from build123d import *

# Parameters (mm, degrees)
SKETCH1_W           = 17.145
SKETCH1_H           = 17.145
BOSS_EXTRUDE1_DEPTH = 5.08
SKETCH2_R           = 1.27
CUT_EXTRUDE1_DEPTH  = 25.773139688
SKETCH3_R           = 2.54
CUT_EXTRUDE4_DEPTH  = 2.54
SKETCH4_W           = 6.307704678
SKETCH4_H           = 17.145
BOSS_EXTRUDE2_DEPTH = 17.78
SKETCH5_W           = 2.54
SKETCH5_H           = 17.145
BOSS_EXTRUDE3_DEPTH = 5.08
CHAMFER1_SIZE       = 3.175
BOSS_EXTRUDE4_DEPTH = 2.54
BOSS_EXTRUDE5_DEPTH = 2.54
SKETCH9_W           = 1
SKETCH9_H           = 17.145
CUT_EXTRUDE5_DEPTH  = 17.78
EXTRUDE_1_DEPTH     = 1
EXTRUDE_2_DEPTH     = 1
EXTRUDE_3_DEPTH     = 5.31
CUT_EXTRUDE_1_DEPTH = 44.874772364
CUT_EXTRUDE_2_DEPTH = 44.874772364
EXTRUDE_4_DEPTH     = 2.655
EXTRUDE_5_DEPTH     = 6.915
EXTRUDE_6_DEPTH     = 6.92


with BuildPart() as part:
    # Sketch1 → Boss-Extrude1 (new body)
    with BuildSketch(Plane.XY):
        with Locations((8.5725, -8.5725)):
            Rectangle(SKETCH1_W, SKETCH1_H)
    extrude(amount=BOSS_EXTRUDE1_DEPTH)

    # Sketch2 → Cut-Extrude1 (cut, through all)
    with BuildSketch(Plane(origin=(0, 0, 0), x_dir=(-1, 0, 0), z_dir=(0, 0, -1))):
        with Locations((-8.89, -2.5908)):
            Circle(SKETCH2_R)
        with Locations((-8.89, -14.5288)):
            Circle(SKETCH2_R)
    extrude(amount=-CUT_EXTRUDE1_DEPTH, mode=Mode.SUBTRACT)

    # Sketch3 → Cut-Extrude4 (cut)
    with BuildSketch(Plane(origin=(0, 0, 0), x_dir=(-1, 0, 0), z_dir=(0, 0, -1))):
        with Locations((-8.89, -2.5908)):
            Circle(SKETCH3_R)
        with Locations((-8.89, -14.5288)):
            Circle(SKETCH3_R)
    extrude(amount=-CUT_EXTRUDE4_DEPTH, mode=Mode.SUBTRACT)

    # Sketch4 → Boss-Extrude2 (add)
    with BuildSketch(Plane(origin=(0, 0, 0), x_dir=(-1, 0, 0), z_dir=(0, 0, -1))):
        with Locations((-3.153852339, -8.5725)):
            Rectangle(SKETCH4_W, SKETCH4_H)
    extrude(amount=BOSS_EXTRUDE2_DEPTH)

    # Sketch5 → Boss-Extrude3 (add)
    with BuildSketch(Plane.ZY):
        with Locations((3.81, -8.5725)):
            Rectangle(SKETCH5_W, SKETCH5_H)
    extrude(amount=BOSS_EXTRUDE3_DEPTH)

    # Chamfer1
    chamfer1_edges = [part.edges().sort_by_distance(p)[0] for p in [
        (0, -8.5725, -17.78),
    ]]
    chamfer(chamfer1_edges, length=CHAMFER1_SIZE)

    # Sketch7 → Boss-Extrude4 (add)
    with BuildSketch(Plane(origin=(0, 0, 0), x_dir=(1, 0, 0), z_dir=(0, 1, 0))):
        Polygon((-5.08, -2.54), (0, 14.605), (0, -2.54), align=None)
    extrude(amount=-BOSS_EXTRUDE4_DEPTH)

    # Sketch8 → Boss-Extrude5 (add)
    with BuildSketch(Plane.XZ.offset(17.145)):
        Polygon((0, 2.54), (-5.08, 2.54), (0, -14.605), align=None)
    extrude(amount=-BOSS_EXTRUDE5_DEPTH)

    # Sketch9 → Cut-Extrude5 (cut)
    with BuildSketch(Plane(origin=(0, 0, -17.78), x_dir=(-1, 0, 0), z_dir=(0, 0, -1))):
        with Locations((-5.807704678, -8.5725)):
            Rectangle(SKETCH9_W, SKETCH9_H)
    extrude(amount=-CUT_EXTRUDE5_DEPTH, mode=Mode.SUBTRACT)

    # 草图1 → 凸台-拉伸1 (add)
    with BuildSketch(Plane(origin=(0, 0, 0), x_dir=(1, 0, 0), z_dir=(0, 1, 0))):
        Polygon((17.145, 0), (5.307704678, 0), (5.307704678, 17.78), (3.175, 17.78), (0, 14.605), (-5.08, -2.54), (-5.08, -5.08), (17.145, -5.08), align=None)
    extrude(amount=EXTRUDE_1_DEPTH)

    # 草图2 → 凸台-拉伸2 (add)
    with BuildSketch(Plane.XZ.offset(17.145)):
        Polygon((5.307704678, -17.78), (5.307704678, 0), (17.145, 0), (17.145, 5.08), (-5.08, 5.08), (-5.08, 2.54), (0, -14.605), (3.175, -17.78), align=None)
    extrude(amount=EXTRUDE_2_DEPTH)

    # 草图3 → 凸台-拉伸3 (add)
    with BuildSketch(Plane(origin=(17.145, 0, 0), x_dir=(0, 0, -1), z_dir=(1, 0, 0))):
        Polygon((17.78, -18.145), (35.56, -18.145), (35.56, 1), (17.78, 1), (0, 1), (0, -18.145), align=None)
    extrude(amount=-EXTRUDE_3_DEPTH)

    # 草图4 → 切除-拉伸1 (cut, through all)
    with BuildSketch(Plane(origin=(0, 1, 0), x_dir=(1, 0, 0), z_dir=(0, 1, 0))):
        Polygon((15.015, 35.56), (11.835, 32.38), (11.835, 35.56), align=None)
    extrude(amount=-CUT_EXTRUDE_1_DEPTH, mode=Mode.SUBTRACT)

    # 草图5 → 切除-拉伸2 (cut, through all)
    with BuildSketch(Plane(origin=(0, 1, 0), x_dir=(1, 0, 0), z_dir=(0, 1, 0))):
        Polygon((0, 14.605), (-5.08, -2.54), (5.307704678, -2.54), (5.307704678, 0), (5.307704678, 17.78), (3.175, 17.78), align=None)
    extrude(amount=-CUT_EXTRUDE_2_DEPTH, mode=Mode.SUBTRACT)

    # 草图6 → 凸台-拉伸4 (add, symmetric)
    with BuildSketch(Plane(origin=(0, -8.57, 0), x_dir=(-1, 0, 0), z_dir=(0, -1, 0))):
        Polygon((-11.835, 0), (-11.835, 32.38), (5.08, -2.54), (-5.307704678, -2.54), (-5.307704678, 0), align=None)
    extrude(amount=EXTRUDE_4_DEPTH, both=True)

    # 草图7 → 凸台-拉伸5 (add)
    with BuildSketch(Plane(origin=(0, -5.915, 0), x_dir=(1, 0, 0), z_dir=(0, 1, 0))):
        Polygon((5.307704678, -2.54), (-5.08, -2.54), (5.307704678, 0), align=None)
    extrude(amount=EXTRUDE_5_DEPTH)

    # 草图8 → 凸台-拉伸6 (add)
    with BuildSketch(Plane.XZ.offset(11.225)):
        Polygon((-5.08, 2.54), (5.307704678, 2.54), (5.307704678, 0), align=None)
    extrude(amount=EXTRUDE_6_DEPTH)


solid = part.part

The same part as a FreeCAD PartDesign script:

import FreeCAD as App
import Part
import Sketcher
Q = App.Units.Quantity


def edges_at(feature, points):
    """Names of the edges that pass closest to the given points."""
    edges = feature.Shape.Edges
    near = lambda p: min(range(len(edges)), key=lambda i: edges[i].distToShape(Part.Vertex(*p))[0])
    return sorted({f"Edge{near(p) + 1}" for p in points})

doc = App.newDocument("Part")
body = doc.addObject("PartDesign::Body", "Body")

# Sketch on XY plane
sketch1 = body.newObject("Sketcher::SketchObject", "Sketch")
sketch1.AttachmentSupport = (doc.getObject("XY_Plane"), [""])
sketch1.MapMode = "FlatFace"
sketch1.addGeometry([
    Part.LineSegment(App.Vector(0, 0, 0), App.Vector(0, -17, 0)),
    Part.LineSegment(App.Vector(0, -17, 0), App.Vector(17, -17, 0)),
    Part.LineSegment(App.Vector(17, -17, 0), App.Vector(17, 0, 0)),
    Part.LineSegment(App.Vector(17, 0, 0), App.Vector(0, 0, 0)),
], False)
sketch1.addConstraint([
    Sketcher.Constraint("Coincident", 0, 2, 1, 1),
    Sketcher.Constraint("Coincident", 1, 2, 2, 1),
    Sketcher.Constraint("Coincident", 2, 2, 3, 1),
    Sketcher.Constraint("Coincident", 3, 2, 0, 1),
    Sketcher.Constraint("Vertical", 0),
    Sketcher.Constraint("Horizontal", 1),
    Sketcher.Constraint("Vertical", 2),
    Sketcher.Constraint("Horizontal", 3),
    Sketcher.Constraint("Coincident", 3, 2, -1, 1),
    Sketcher.Constraint("Equal", 3, 0),
    Sketcher.Constraint("DistanceX", 1, 1, 1, 2, Q("0.675 in")),
])
pad1 = body.newObject("PartDesign::Pad", "Pad")
pad1.Profile = sketch1
pad1.Length = Q("0.2 in")

# Sketch on XY plane
sketch2 = body.newObject("Sketcher::SketchObject", "Sketch001")
sketch2.AttachmentSupport = (doc.getObject("XY_Plane"), [""])
sketch2.MapMode = "FlatFace"
sketch2.addGeometry([
    Part.Circle(App.Vector(8.9, -2.6, 0), App.Vector(0, 0, 1), 1.3),
    Part.Circle(App.Vector(8.9, -14.5, 0), App.Vector(0, 0, 1), 1.3),
], False)
sketch2.addConstraint([
    Sketcher.Constraint("Equal", 0, 1),
    Sketcher.Constraint("Vertical", 0, 3, 1, 3),
    Sketcher.Constraint("Diameter", 0, Q("0.1 in")),
    Sketcher.Constraint("DistanceX", -1, 1, 0, 3, Q("0.35 in")),
    Sketcher.Constraint("DistanceY", 1, 3, 0, 3, Q("0.47 in")),
    Sketcher.Constraint("DistanceY", 0, 3, -1, 1, Q("0.102 in")),
])
pocket1 = body.newObject("PartDesign::Pocket", "Pocket")
pocket1.Profile = sketch2
pocket1.Type = "ThroughAll"
pocket1.Reversed = True

# Sketch on XY plane
sketch3 = body.newObject("Sketcher::SketchObject", "Sketch002")
sketch3.AttachmentSupport = (doc.getObject("XY_Plane"), [""])
sketch3.MapMode = "FlatFace"
sketch3.addGeometry([
    Part.Circle(App.Vector(8.9, -2.6, 0), App.Vector(0, 0, 1), 2.5),
    Part.Circle(App.Vector(8.9, -14.5, 0), App.Vector(0, 0, 1), 2.5),
], False)
sketch3.addConstraint([
    Sketcher.Constraint("Equal", 0, 1),
    Sketcher.Constraint("Vertical", 0, 3, 1, 3),
    Sketcher.Constraint("Diameter", 0, Q("0.2 in")),
    Sketcher.Constraint("DistanceX", -1, 1, 0, 3, Q("0.35 in")),
    Sketcher.Constraint("DistanceY", 1, 3, 0, 3, Q("0.47 in")),
    Sketcher.Constraint("DistanceY", 0, 3, -1, 1, Q("0.102 in")),
])
pocket2 = body.newObject("PartDesign::Pocket", "Pocket001")
pocket2.Profile = sketch3
pocket2.Length = Q("0.1 in")
pocket2.Reversed = True

# Sketch on XY plane
sketch4 = body.newObject("Sketcher::SketchObject", "Sketch003")
sketch4.AttachmentSupport = (doc.getObject("XY_Plane"), [""])
sketch4.MapMode = "FlatFace"
sketch4.addGeometry([
    Part.LineSegment(App.Vector(6, 0, 0), App.Vector(6, -17, 0)),
    Part.LineSegment(App.Vector(6, -17, 0), App.Vector(0, -17, 0)),
    Part.LineSegment(App.Vector(0, -17, 0), App.Vector(0, 0, 0)),
    Part.LineSegment(App.Vector(0, 0, 0), App.Vector(6, 0, 0)),
], False)
sketch4.addConstraint([
    Sketcher.Constraint("Coincident", 0, 2, 1, 1),
    Sketcher.Constraint("Coincident", 1, 2, 2, 1),
    Sketcher.Constraint("Coincident", 2, 2, 3, 1),
    Sketcher.Constraint("Coincident", 3, 2, 0, 1),
    Sketcher.Constraint("Vertical", 0),
    Sketcher.Constraint("Horizontal", 1),
    Sketcher.Constraint("Vertical", 2),
    Sketcher.Constraint("Horizontal", 3),
    Sketcher.Constraint("Coincident", 2, 2, -1, 1),
    Sketcher.Constraint("DistanceY", 0, 2, 0, 1, Q("0.675 in")),
    Sketcher.Constraint("DistanceX", 1, 2, 1, 1, Q("6.307705 mm")),
])
pad2 = body.newObject("PartDesign::Pad", "Pad001")
pad2.Profile = sketch4
pad2.Length = Q("0.7 in")
pad2.Reversed = True

# Sketch on YZ plane
sketch5 = body.newObject("Sketcher::SketchObject", "Sketch004")
sketch5.AttachmentSupport = (doc.getObject("YZ_Plane"), [""])
sketch5.MapMode = "FlatFace"
sketch5.addGeometry([
    Part.LineSegment(App.Vector(0, 2.5, 0), App.Vector(-17.1, 2.5, 0)),
    Part.LineSegment(App.Vector(-17.1, 2.5, 0), App.Vector(-17.1, 5.1, 0)),
    Part.LineSegment(App.Vector(-17.1, 5.1, 0), App.Vector(0, 5.1, 0)),
    Part.LineSegment(App.Vector(0, 5.1, 0), App.Vector(0, 2.5, 0)),
], False)
sketch5.addConstraint([
    Sketcher.Constraint("Coincident", 0, 2, 1, 1),
    Sketcher.Constraint("Coincident", 1, 2, 2, 1),
    Sketcher.Constraint("Coincident", 2, 2, 3, 1),
    Sketcher.Constraint("Coincident", 3, 2, 0, 1),
    Sketcher.Constraint("Horizontal", 0),
    Sketcher.Constraint("Vertical", 1),
    Sketcher.Constraint("Horizontal", 2),
    Sketcher.Constraint("Vertical", 3),
    Sketcher.Constraint("PointOnObject", 2, 2, -2),
    Sketcher.Constraint("DistanceY", 1, 1, 1, 2, Q("0.1 in")),
    Sketcher.Constraint("DistanceY", -1, 1, 0, 2, Q("0.1 in")),
    Sketcher.Constraint("DistanceX", 0, 2, 0, 1, Q("0.675 in")),
])
pad3 = body.newObject("PartDesign::Pad", "Pad002")
pad3.Profile = sketch5
pad3.Length = Q("0.2 in")
pad3.Reversed = True
doc.recompute()

chamfer = body.newObject("PartDesign::Chamfer", "Chamfer")
chamfer.Base = (pad3, edges_at(pad3, [(0, -8.572, -17.78)]))
chamfer.Size = Q("0.125 in")

# Sketch on XZ plane
sketch6 = body.newObject("Sketcher::SketchObject", "Sketch005")
sketch6.AttachmentSupport = (doc.getObject("XZ_Plane"), [""])
sketch6.MapMode = "FlatFace"
sketch6.addGeometry([
    Part.LineSegment(App.Vector(0, -15, 0), App.Vector(-5, 3, 0)),
    Part.LineSegment(App.Vector(-5, 3, 0), App.Vector(0, 3, 0)),
    Part.LineSegment(App.Vector(0, 3, 0), App.Vector(0, -15, 0)),
], False)
sketch6.addConstraint([
    Sketcher.Constraint("Coincident", 0, 2, 1, 1),
    Sketcher.Constraint("Coincident", 1, 2, 2, 1),
    Sketcher.Constraint("Coincident", 2, 2, 0, 1),
    Sketcher.Constraint("Horizontal", 1),
    Sketcher.Constraint("Vertical", 2),
    Sketcher.Constraint("PointOnObject", 1, 2, -2),
    Sketcher.Constraint("DistanceX", 1, 1, 1, 2, Q("0.2 in")),
    Sketcher.Constraint("DistanceY", -1, 1, 0, 2, Q("0.1 in")),
    Sketcher.Constraint("DistanceY", 2, 2, 2, 1, Q("0.675 in")),
])
pad4 = body.newObject("PartDesign::Pad", "Pad003")
pad4.Profile = sketch6
pad4.Length = Q("0.1 in")

# Sketch on XZ plane
sketch7 = body.newObject("Sketcher::SketchObject", "Sketch006")
sketch7.AttachmentSupport = (doc.getObject("XZ_Plane"), [""])
sketch7.MapMode = "FlatFace"
sketch7.AttachmentOffset = App.Placement(App.Vector(0, 0, 0.675 * 25.4), App.Rotation())
sketch7.addGeometry([
    Part.LineSegment(App.Vector(0, 3, 0), App.Vector(-5, 3, 0)),
    Part.LineSegment(App.Vector(-5, 3, 0), App.Vector(0, -15, 0)),
    Part.LineSegment(App.Vector(0, -15, 0), App.Vector(0, 3, 0)),
], False)
sketch7.addConstraint([
    Sketcher.Constraint("Coincident", 0, 2, 1, 1),
    Sketcher.Constraint("Coincident", 1, 2, 2, 1),
    Sketcher.Constraint("Coincident", 2, 2, 0, 1),
    Sketcher.Constraint("Horizontal", 0),
    Sketcher.Constraint("Vertical", 2),
    Sketcher.Constraint("PointOnObject", 1, 2, -2),
    Sketcher.Constraint("DistanceX", 0, 2, 0, 1, Q("0.2 in")),
    Sketcher.Constraint("DistanceY", -1, 1, 0, 2, Q("0.1 in")),
    Sketcher.Constraint("DistanceY", 2, 1, 2, 2, Q("0.675 in")),
])
pad5 = body.newObject("PartDesign::Pad", "Pad004")
pad5.Profile = sketch7
pad5.Length = Q("0.1 in")
pad5.Reversed = True

# Sketch on XY plane
sketch8 = body.newObject("Sketcher::SketchObject", "Sketch007")
sketch8.AttachmentSupport = (doc.getObject("XY_Plane"), [""])
sketch8.MapMode = "FlatFace"
sketch8.AttachmentOffset = App.Placement(App.Vector(0, 0, -0.7 * 25.4), App.Rotation())
sketch8.addGeometry([
    Part.LineSegment(App.Vector(6.3, 0, 0), App.Vector(6.3, -17.1, 0)),
    Part.LineSegment(App.Vector(6.3, -17.1, 0), App.Vector(5.3, -17.1, 0)),
    Part.LineSegment(App.Vector(5.3, -17.1, 0), App.Vector(5.3, 0, 0)),
    Part.LineSegment(App.Vector(5.3, 0, 0), App.Vector(6.3, 0, 0)),
], False)
sketch8.addConstraint([
    Sketcher.Constraint("Coincident", 0, 2, 1, 1),
    Sketcher.Constraint("Coincident", 1, 2, 2, 1),
    Sketcher.Constraint("Coincident", 2, 2, 3, 1),
    Sketcher.Constraint("Coincident", 3, 2, 0, 1),
    Sketcher.Constraint("Vertical", 0),
    Sketcher.Constraint("Horizontal", 1),
    Sketcher.Constraint("Vertical", 2),
    Sketcher.Constraint("Horizontal", 3),
    Sketcher.Constraint("PointOnObject", 2, 2, -1),
    Sketcher.Constraint("DistanceY", 0, 2, 0, 1, Q("0.675 in")),
    Sketcher.Constraint("DistanceX", 1, 2, 1, 1, Q("1 mm")),
    Sketcher.Constraint("DistanceX", -1, 1, 0, 2, Q("6.307705 mm")),
])
pocket3 = body.newObject("PartDesign::Pocket", "Pocket002")
pocket3.Profile = sketch8
pocket3.Length = Q("0.7 in")
pocket3.Reversed = True

# Sketch on XZ plane
sketch9 = body.newObject("Sketcher::SketchObject", "Sketch008")
sketch9.AttachmentSupport = (doc.getObject("XZ_Plane"), [""])
sketch9.MapMode = "FlatFace"
sketch9.addGeometry([
    Part.LineSegment(App.Vector(17.1, 0, 0), App.Vector(5.3, 0, 0)),  # 0
    Part.LineSegment(App.Vector(5.3, 0, 0), App.Vector(5.3, -17.8, 0)),  # 1
    Part.LineSegment(App.Vector(5.3, -17.8, 0), App.Vector(3.2, -17.8, 0)),  # 2
    Part.LineSegment(App.Vector(3.2, -17.8, 0), App.Vector(0, -14.6, 0)),  # 3
    Part.LineSegment(App.Vector(0, -14.6, 0), App.Vector(-5.1, 2.5, 0)),  # 4
    Part.LineSegment(App.Vector(-5.1, 2.5, 0), App.Vector(-5.1, 5.1, 0)),  # 5
    Part.LineSegment(App.Vector(-5.1, 5.1, 0), App.Vector(17.1, 5.1, 0)),  # 6
    Part.LineSegment(App.Vector(17.1, 5.1, 0), App.Vector(17.1, 0, 0)),  # 7
], False)
sketch9.addConstraint([
    Sketcher.Constraint("Coincident", 0, 2, 1, 1),
    Sketcher.Constraint("Coincident", 1, 2, 2, 1),
    Sketcher.Constraint("Coincident", 2, 2, 3, 1),
    Sketcher.Constraint("Coincident", 3, 2, 4, 1),
    Sketcher.Constraint("Coincident", 4, 2, 5, 1),
    Sketcher.Constraint("Coincident", 5, 2, 6, 1),
    Sketcher.Constraint("Coincident", 6, 2, 7, 1),
    Sketcher.Constraint("Coincident", 7, 2, 0, 1),
    Sketcher.Constraint("Horizontal", 0),
    Sketcher.Constraint("Vertical", 1),
    Sketcher.Constraint("Horizontal", 2),
    Sketcher.Constraint("Vertical", 5),
    Sketcher.Constraint("Horizontal", 6),
    Sketcher.Constraint("Vertical", 7),
    Sketcher.Constraint("PointOnObject", 0, 2, -1),
    Sketcher.Constraint("PointOnObject", 3, 2, -2),
    Sketcher.Constraint("DistanceY", 1, 2, 1, 1, Q("0.7 in")),
    Sketcher.Constraint("DistanceY", 5, 1, 5, 2, Q("0.1 in")),
    Sketcher.Constraint("DistanceY", 7, 2, 7, 1, Q("0.2 in")),
    Sketcher.Constraint("Angle", 3, Q("135 deg")),
    Sketcher.Constraint("DistanceX", 4, 2, -1, 1, Q("0.2 in")),
    Sketcher.Constraint("DistanceX", 6, 1, 6, 2, Q("0.875 in")),
    Sketcher.Constraint("DistanceX", -1, 1, 2, 2, Q("0.125 in")),
    Sketcher.Constraint("DistanceX", 0, 2, 0, 1, Q("11.837295 mm")),
])
pad6 = body.newObject("PartDesign::Pad", "Pad005")
pad6.Profile = sketch9
pad6.Length = 1
pad6.Reversed = True

# Sketch on XZ plane
sketch10 = body.newObject("Sketcher::SketchObject", "Sketch009")
sketch10.AttachmentSupport = (doc.getObject("XZ_Plane"), [""])
sketch10.MapMode = "FlatFace"
sketch10.AttachmentOffset = App.Placement(App.Vector(0, 0, 0.675 * 25.4), App.Rotation())
sketch10.addGeometry([
    Part.LineSegment(App.Vector(5.3, -17.8, 0), App.Vector(5.3, 0, 0)),  # 0
    Part.LineSegment(App.Vector(5.3, 0, 0), App.Vector(17.1, 0, 0)),  # 1
    Part.LineSegment(App.Vector(17.1, 0, 0), App.Vector(17.1, 5.1, 0)),  # 2
    Part.LineSegment(App.Vector(17.1, 5.1, 0), App.Vector(-5.1, 5.1, 0)),  # 3
    Part.LineSegment(App.Vector(-5.1, 5.1, 0), App.Vector(-5.1, 2.5, 0)),  # 4
    Part.LineSegment(App.Vector(-5.1, 2.5, 0), App.Vector(0, -14.6, 0)),  # 5
    Part.LineSegment(App.Vector(0, -14.6, 0), App.Vector(3.2, -17.8, 0)),  # 6
    Part.LineSegment(App.Vector(3.2, -17.8, 0), App.Vector(5.3, -17.8, 0)),  # 7
], False)
sketch10.addConstraint([
    Sketcher.Constraint("Coincident", 0, 2, 1, 1),
    Sketcher.Constraint("Coincident", 1, 2, 2, 1),
    Sketcher.Constraint("Coincident", 2, 2, 3, 1),
    Sketcher.Constraint("Coincident", 3, 2, 4, 1),
    Sketcher.Constraint("Coincident", 4, 2, 5, 1),
    Sketcher.Constraint("Coincident", 5, 2, 6, 1),
    Sketcher.Constraint("Coincident", 6, 2, 7, 1),
    Sketcher.Constraint("Coincident", 7, 2, 0, 1),
    Sketcher.Constraint("Vertical", 0),
    Sketcher.Constraint("Horizontal", 1),
    Sketcher.Constraint("Vertical", 2),
    Sketcher.Constraint("Horizontal", 3),
    Sketcher.Constraint("Vertical", 4),
    Sketcher.Constraint("Horizontal", 7),
    Sketcher.Constraint("PointOnObject", 0, 2, -1),
    Sketcher.Constraint("PointOnObject", 5, 2, -2),
    Sketcher.Constraint("DistanceY", 0, 1, 0, 2, Q("0.7 in")),
    Sketcher.Constraint("DistanceY", 2, 1, 2, 2, Q("0.2 in")),
    Sketcher.Constraint("DistanceY", 4, 2, 4, 1, Q("0.1 in")),
    Sketcher.Constraint("Angle", 6, Q("-45 deg")),
    Sketcher.Constraint("DistanceX", 3, 2, -1, 1, Q("0.2 in")),
    Sketcher.Constraint("DistanceX", 3, 2, 3, 1, Q("0.875 in")),
    Sketcher.Constraint("DistanceX", 6, 2, 1, 2, Q("0.55 in")),
    Sketcher.Constraint("DistanceX", 1, 1, 1, 2, Q("11.837295 mm")),
])
pad7 = body.newObject("PartDesign::Pad", "Pad006")
pad7.Profile = sketch10
pad7.Length = 1

# Sketch on YZ plane
sketch11 = body.newObject("Sketcher::SketchObject", "Sketch010")
sketch11.AttachmentSupport = (doc.getObject("YZ_Plane"), [""])
sketch11.MapMode = "FlatFace"
sketch11.AttachmentOffset = App.Placement(App.Vector(0, 0, 0.675 * 25.4), App.Rotation())
sketch11.addGeometry([
    Part.LineSegment(App.Vector(-18, -36, 0), App.Vector(1, -36, 0)),
    Part.LineSegment(App.Vector(1, -36, 0), App.Vector(1, 0, 0)),
    Part.LineSegment(App.Vector(1, 0, 0), App.Vector(-18, 0, 0)),
    Part.LineSegment(App.Vector(-18, 0, 0), App.Vector(-18, -36, 0)),
], False)
sketch11.addConstraint([
    Sketcher.Constraint("Coincident", 0, 2, 1, 1),
    Sketcher.Constraint("Coincident", 1, 2, 2, 1),
    Sketcher.Constraint("Coincident", 2, 2, 3, 1),
    Sketcher.Constraint("Coincident", 3, 2, 0, 1),
    Sketcher.Constraint("Horizontal", 0),
    Sketcher.Constraint("Vertical", 1),
    Sketcher.Constraint("Horizontal", 2),
    Sketcher.Constraint("Vertical", 3),
    Sketcher.Constraint("PointOnObject", 1, 2, -1),
    Sketcher.Constraint("DistanceY", 1, 1, 1, 2, Q("1.4 in")),
    Sketcher.Constraint("DistanceX", 0, 1, 0, 2, Q("19.145 mm")),
    Sketcher.Constraint("DistanceX", -1, 1, 0, 2, Q("1 mm")),
])
pad8 = body.newObject("PartDesign::Pad", "Pad007")
pad8.Profile = sketch11
pad8.Length = 5.31
pad8.Reversed = True

# Sketch on XZ plane
sketch12 = body.newObject("Sketcher::SketchObject", "Sketch011")
sketch12.AttachmentSupport = (doc.getObject("XZ_Plane"), [""])
sketch12.MapMode = "FlatFace"
sketch12.AttachmentOffset = App.Placement(App.Vector(0, 0, -1), App.Rotation())
sketch12.addGeometry([
    Part.LineSegment(App.Vector(11.8, -32.4, 0), App.Vector(15, -35.6, 0)),
    Part.LineSegment(App.Vector(15, -35.6, 0), App.Vector(11.8, -35.6, 0)),
    Part.LineSegment(App.Vector(11.8, -35.6, 0), App.Vector(11.8, -32.4, 0)),
], False)
sketch12.addConstraint([
    Sketcher.Constraint("Coincident", 0, 2, 1, 1),
    Sketcher.Constraint("Coincident", 1, 2, 2, 1),
    Sketcher.Constraint("Coincident", 2, 2, 0, 1),
    Sketcher.Constraint("Horizontal", 1),
    Sketcher.Constraint("Vertical", 2),
    Sketcher.Constraint("Equal", 1, 2),
    Sketcher.Constraint("DistanceY", 0, 2, -1, 1, Q("1.4 in")),
    Sketcher.Constraint("DistanceX", 1, 2, 1, 1, Q("3.18 mm")),
    Sketcher.Constraint("DistanceX", -1, 1, 0, 2, Q("15.015 mm")),
])
pocket4 = body.newObject("PartDesign::Pocket", "Pocket003")
pocket4.Profile = sketch12
pocket4.Type = "ThroughAll"
pocket4.Reversed = True

# Sketch on XZ plane
sketch13 = body.newObject("Sketcher::SketchObject", "Sketch012")
sketch13.AttachmentSupport = (doc.getObject("XZ_Plane"), [""])
sketch13.MapMode = "FlatFace"
sketch13.AttachmentOffset = App.Placement(App.Vector(0, 0, -1), App.Rotation())
sketch13.addGeometry([
    Part.LineSegment(App.Vector(0, -14.6, 0), App.Vector(-5.1, 2.5, 0)),  # 0
    Part.LineSegment(App.Vector(-5.1, 2.5, 0), App.Vector(5.3, 2.5, 0)),  # 1
    Part.LineSegment(App.Vector(5.3, 2.5, 0), App.Vector(5.3, -17.8, 0)),  # 2
    Part.LineSegment(App.Vector(5.3, -17.8, 0), App.Vector(3.2, -17.8, 0)),  # 3
    Part.LineSegment(App.Vector(3.2, -17.8, 0), App.Vector(0, -14.6, 0)),  # 4
], False)
sketch13.addConstraint([
    Sketcher.Constraint("Coincident", 0, 2, 1, 1),
    Sketcher.Constraint("Coincident", 1, 2, 2, 1),
    Sketcher.Constraint("Coincident", 2, 2, 3, 1),
    Sketcher.Constraint("Coincident", 3, 2, 4, 1),
    Sketcher.Constraint("Coincident", 4, 2, 0, 1),
    Sketcher.Constraint("Horizontal", 1),
    Sketcher.Constraint("Vertical", 2),
    Sketcher.Constraint("Horizontal", 3),
    Sketcher.Constraint("PointOnObject", 4, 2, -2),
    Sketcher.Constraint("DistanceY", 2, 2, 2, 1, Q("0.8 in")),
    Sketcher.Constraint("Angle", 4, Q("135 deg")),
    Sketcher.Constraint("DistanceX", 0, 2, -1, 1, Q("0.2 in")),
    Sketcher.Constraint("DistanceY", -1, 1, 0, 2, Q("0.1 in")),
    Sketcher.Constraint("DistanceX", -1, 1, 3, 2, Q("0.125 in")),
    Sketcher.Constraint("DistanceX", 1, 1, 1, 2, Q("10.387705 mm")),
])
pocket5 = body.newObject("PartDesign::Pocket", "Pocket004")
pocket5.Profile = sketch13
pocket5.Type = "ThroughAll"
pocket5.Reversed = True

# Sketch on XZ plane
sketch14 = body.newObject("Sketcher::SketchObject", "Sketch013")
sketch14.AttachmentSupport = (doc.getObject("XZ_Plane"), [""])
sketch14.MapMode = "FlatFace"
sketch14.AttachmentOffset = App.Placement(App.Vector(0, 0, 8.57), App.Rotation())
sketch14.addGeometry([
    Part.LineSegment(App.Vector(11.8, -32.4, 0), App.Vector(11.8, 0, 0)),  # 0
    Part.LineSegment(App.Vector(11.8, 0, 0), App.Vector(5.3, 0, 0)),  # 1
    Part.LineSegment(App.Vector(5.3, 0, 0), App.Vector(5.3, 2.5, 0)),  # 2
    Part.LineSegment(App.Vector(5.3, 2.5, 0), App.Vector(-5.1, 2.5, 0)),  # 3
    Part.LineSegment(App.Vector(-5.1, 2.5, 0), App.Vector(11.8, -32.4, 0)),  # 4
], False)
sketch14.addConstraint([
    Sketcher.Constraint("Coincident", 0, 2, 1, 1),
    Sketcher.Constraint("Coincident", 1, 2, 2, 1),
    Sketcher.Constraint("Coincident", 2, 2, 3, 1),
    Sketcher.Constraint("Coincident", 3, 2, 4, 1),
    Sketcher.Constraint("Coincident", 4, 2, 0, 1),
    Sketcher.Constraint("Vertical", 0),
    Sketcher.Constraint("Horizontal", 1),
    Sketcher.Constraint("Vertical", 2),
    Sketcher.Constraint("Horizontal", 3),
    Sketcher.Constraint("PointOnObject", 0, 2, -1),
    Sketcher.Constraint("DistanceY", 2, 1, 2, 2, Q("0.1 in")),
    Sketcher.Constraint("DistanceX", 3, 2, -1, 1, Q("0.2 in")),
    Sketcher.Constraint("DistanceY", 0, 1, 0, 2, Q("32.38 mm")),
    Sketcher.Constraint("DistanceX", -1, 1, 0, 2, Q("11.835 mm")),
    Sketcher.Constraint("DistanceX", 1, 2, 1, 1, Q("6.527295 mm")),
])
pad9 = body.newObject("PartDesign::Pad", "Pad008")
pad9.Profile = sketch14
pad9.Length = 5.31
pad9.Midplane = True

# Sketch on XZ plane
sketch15 = body.newObject("Sketcher::SketchObject", "Sketch014")
sketch15.AttachmentSupport = (doc.getObject("XZ_Plane"), [""])
sketch15.MapMode = "FlatFace"
sketch15.AttachmentOffset = App.Placement(App.Vector(0, 0, 5.915), App.Rotation())
sketch15.addGeometry([
    Part.LineSegment(App.Vector(-5.1, 2.5, 0), App.Vector(5.3, 2.5, 0)),
    Part.LineSegment(App.Vector(5.3, 2.5, 0), App.Vector(5.3, 0, 0)),
    Part.LineSegment(App.Vector(5.3, 0, 0), App.Vector(-5.1, 2.5, 0)),
], False)
sketch15.addConstraint([
    Sketcher.Constraint("Coincident", 0, 2, 1, 1),
    Sketcher.Constraint("Coincident", 1, 2, 2, 1),
    Sketcher.Constraint("Coincident", 2, 2, 0, 1),
    Sketcher.Constraint("Horizontal", 0),
    Sketcher.Constraint("Vertical", 1),
    Sketcher.Constraint("PointOnObject", 1, 2, -1),
    Sketcher.Constraint("DistanceY", 1, 2, 1, 1, Q("0.1 in")),
    Sketcher.Constraint("DistanceX", 2, 2, -1, 1, Q("0.2 in")),
    Sketcher.Constraint("DistanceX", 0, 1, 0, 2, Q("10.387705 mm")),
])
pad10 = body.newObject("PartDesign::Pad", "Pad009")
pad10.Profile = sketch15
pad10.Length = 6.915
pad10.Reversed = True

# Sketch on XZ plane
sketch16 = body.newObject("Sketcher::SketchObject", "Sketch015")
sketch16.AttachmentSupport = (doc.getObject("XZ_Plane"), [""])
sketch16.MapMode = "FlatFace"
sketch16.AttachmentOffset = App.Placement(App.Vector(0, 0, 11.225), App.Rotation())
sketch16.addGeometry([
    Part.LineSegment(App.Vector(5.3, 2.5, 0), App.Vector(-5.1, 2.5, 0)),
    Part.LineSegment(App.Vector(-5.1, 2.5, 0), App.Vector(5.3, 0, 0)),
    Part.LineSegment(App.Vector(5.3, 0, 0), App.Vector(5.3, 2.5, 0)),
], False)
sketch16.addConstraint([
    Sketcher.Constraint("Coincident", 0, 2, 1, 1),
    Sketcher.Constraint("Coincident", 1, 2, 2, 1),
    Sketcher.Constraint("Coincident", 2, 2, 0, 1),
    Sketcher.Constraint("Horizontal", 0),
    Sketcher.Constraint("Vertical", 2),
    Sketcher.Constraint("PointOnObject", 1, 2, -1),
    Sketcher.Constraint("DistanceY", 2, 1, 2, 2, Q("0.1 in")),
    Sketcher.Constraint("DistanceX", 0, 2, -1, 1, Q("0.2 in")),
    Sketcher.Constraint("DistanceX", 0, 2, 0, 1, Q("10.387705 mm")),
])
pad11 = body.newObject("PartDesign::Pad", "Pad010")
pad11.Profile = sketch16
pad11.Length = 6.92

doc.recompute()
